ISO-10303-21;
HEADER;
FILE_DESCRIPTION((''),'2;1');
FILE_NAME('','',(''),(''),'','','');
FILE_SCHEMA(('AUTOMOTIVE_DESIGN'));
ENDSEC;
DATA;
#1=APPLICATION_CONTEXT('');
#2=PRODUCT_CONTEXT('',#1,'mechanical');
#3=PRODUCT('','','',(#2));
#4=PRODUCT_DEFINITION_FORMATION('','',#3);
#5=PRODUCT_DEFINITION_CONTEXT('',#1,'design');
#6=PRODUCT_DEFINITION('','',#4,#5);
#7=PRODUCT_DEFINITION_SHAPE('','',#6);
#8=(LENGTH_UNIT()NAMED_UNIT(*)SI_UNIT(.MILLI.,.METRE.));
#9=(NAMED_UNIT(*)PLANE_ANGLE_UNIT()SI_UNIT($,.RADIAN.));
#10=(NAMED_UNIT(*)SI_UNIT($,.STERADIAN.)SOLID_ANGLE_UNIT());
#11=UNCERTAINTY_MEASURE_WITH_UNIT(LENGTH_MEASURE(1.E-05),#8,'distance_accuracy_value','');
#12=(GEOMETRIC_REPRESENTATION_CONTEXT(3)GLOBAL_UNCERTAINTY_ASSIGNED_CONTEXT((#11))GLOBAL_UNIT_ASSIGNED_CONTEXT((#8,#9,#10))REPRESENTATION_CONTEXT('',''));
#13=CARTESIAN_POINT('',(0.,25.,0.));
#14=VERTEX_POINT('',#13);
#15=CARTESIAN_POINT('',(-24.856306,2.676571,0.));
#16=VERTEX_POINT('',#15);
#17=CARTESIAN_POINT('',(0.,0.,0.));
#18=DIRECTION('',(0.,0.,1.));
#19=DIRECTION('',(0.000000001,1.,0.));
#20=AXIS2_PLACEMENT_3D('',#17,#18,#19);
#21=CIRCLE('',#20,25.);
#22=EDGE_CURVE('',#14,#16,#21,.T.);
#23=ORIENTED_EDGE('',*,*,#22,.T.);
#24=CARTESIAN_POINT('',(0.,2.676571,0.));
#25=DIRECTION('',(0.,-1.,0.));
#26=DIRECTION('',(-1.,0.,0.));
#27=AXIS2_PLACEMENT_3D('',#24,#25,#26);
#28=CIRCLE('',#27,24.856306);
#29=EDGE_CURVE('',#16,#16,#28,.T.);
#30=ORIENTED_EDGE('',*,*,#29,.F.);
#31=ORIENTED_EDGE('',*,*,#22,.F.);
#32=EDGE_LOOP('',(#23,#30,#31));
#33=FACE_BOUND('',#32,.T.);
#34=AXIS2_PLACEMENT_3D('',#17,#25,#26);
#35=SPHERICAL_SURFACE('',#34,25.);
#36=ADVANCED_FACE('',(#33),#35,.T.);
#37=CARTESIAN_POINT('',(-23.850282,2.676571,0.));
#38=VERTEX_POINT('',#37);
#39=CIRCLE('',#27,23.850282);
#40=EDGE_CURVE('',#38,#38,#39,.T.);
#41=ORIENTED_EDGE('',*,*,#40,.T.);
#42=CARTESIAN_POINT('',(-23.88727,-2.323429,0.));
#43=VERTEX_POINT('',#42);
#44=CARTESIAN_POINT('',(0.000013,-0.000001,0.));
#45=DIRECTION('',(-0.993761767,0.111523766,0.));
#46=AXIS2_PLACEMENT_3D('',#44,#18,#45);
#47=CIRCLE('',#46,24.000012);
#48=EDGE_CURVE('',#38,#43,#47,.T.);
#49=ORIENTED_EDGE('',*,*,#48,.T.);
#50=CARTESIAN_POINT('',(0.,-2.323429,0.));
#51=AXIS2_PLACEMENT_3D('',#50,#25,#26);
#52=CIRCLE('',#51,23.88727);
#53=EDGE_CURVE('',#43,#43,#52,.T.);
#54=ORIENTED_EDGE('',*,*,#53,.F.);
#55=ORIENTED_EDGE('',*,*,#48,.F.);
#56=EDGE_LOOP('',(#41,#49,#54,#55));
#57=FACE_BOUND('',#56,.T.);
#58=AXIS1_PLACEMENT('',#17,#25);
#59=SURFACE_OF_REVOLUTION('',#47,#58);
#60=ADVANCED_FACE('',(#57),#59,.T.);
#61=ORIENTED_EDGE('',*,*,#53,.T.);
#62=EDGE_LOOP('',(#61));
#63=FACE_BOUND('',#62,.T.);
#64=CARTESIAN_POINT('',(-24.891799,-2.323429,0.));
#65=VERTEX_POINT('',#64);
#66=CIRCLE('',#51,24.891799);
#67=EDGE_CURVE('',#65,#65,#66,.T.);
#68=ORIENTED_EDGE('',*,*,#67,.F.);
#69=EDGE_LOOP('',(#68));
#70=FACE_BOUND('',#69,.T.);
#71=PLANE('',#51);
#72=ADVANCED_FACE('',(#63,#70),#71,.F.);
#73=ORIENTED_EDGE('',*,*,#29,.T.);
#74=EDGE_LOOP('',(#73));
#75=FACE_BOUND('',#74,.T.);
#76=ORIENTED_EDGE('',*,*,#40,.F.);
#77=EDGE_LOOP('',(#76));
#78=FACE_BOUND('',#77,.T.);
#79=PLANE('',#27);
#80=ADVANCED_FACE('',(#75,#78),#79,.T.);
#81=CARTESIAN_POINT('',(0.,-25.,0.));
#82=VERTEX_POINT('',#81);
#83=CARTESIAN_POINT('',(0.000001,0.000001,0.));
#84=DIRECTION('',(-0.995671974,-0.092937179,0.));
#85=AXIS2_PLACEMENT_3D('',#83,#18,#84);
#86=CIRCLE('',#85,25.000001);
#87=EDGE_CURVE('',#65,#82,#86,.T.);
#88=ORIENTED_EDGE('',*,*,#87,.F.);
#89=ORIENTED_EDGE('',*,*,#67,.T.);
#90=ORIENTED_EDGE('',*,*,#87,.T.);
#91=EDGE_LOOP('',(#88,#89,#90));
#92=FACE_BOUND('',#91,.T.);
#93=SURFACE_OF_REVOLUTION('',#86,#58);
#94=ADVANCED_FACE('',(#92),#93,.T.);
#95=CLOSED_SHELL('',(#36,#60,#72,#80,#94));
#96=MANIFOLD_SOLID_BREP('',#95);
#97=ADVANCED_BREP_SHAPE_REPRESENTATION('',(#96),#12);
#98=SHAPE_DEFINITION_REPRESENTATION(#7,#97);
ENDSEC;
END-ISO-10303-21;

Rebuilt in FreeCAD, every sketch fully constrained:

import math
import FreeCAD as App
import Part
import Sketcher
from FreeCAD import Vector

doc = App.newDocument("Part")
body = doc.addObject("PartDesign::Body", "Body")

# Sketch on XY plane
sketch1 = body.newObject("Sketcher::SketchObject", "Sketch")
sketch1.AttachmentSupport = (doc.getObject("XY_Plane"), [""])
sketch1.MapMode = "FlatFace"
sketch1.addGeometry([
    Part.LineSegment(Vector(0, -25, 0), Vector(0, 25, 0)),  # 0
    Part.ArcOfCircle(Part.Circle(Vector(0, 0, 0), Vector(0, 0, 1), 25), math.radians(90), math.radians(174)),  # 1
    Part.LineSegment(Vector(-24.9, 2.7, 0), Vector(-23.9, 2.7, 0)),  # 2
    Part.ArcOfCircle(Part.Circle(Vector(0, 0, 0), Vector(0, 0, 1), 24), math.radians(173.6), math.radians(185.56)),  # 3
    Part.LineSegment(Vector(-23.9, -2.3, 0), Vector(-24.9, -2.3, 0)),  # 4
    Part.ArcOfCircle(Part.Circle(Vector(0, 0, 0), Vector(0, 0, 1), 25), math.radians(-175), math.radians(-90)),  # 5
], False)
sketch1.addConstraint([
    Sketcher.Constraint("Coincident", 0, 2, 1, 1),
    Sketcher.Constraint("Coincident", 1, 2, 2, 1),
    Sketcher.Constraint("Coincident", 2, 2, 3, 1),
    Sketcher.Constraint("Coincident", 3, 2, 4, 1),
    Sketcher.Constraint("Coincident", 4, 2, 5, 1),
    Sketcher.Constraint("Coincident", 5, 2, 0, 1),
    Sketcher.Constraint("Vertical", 0),
    Sketcher.Constraint("Horizontal", 2),
    Sketcher.Constraint("Horizontal", 4),
    Sketcher.Constraint("Coincident", 1, 3, -1, 1),
    Sketcher.Constraint("Coincident", 5, 3, -1, 1),
    Sketcher.Constraint("Equal", 1, 5),
    Sketcher.Constraint("PointOnObject", 3, 3, -1),
    Sketcher.Constraint("PointOnObject", 0, 2, -2),
    Sketcher.Constraint("Radius", 1, 25.0),
    Sketcher.Constraint("DistanceY", 3, 2, 2, 2, 5.0),
    Sketcher.Constraint("Radius", 3, 24.000012),
    Sketcher.Constraint("DistanceX", 4, 2, 4, 1, 1.004529),
    Sketcher.Constraint("DistanceX", 4, 2, -1, 1, 24.891799),
])
revolution = body.newObject("PartDesign::Revolution", "Revolution")
revolution.Profile = sketch1
revolution.ReferenceAxis = (sketch1, ["V_Axis"])
revolution.Angle = 360

doc.recompute()
